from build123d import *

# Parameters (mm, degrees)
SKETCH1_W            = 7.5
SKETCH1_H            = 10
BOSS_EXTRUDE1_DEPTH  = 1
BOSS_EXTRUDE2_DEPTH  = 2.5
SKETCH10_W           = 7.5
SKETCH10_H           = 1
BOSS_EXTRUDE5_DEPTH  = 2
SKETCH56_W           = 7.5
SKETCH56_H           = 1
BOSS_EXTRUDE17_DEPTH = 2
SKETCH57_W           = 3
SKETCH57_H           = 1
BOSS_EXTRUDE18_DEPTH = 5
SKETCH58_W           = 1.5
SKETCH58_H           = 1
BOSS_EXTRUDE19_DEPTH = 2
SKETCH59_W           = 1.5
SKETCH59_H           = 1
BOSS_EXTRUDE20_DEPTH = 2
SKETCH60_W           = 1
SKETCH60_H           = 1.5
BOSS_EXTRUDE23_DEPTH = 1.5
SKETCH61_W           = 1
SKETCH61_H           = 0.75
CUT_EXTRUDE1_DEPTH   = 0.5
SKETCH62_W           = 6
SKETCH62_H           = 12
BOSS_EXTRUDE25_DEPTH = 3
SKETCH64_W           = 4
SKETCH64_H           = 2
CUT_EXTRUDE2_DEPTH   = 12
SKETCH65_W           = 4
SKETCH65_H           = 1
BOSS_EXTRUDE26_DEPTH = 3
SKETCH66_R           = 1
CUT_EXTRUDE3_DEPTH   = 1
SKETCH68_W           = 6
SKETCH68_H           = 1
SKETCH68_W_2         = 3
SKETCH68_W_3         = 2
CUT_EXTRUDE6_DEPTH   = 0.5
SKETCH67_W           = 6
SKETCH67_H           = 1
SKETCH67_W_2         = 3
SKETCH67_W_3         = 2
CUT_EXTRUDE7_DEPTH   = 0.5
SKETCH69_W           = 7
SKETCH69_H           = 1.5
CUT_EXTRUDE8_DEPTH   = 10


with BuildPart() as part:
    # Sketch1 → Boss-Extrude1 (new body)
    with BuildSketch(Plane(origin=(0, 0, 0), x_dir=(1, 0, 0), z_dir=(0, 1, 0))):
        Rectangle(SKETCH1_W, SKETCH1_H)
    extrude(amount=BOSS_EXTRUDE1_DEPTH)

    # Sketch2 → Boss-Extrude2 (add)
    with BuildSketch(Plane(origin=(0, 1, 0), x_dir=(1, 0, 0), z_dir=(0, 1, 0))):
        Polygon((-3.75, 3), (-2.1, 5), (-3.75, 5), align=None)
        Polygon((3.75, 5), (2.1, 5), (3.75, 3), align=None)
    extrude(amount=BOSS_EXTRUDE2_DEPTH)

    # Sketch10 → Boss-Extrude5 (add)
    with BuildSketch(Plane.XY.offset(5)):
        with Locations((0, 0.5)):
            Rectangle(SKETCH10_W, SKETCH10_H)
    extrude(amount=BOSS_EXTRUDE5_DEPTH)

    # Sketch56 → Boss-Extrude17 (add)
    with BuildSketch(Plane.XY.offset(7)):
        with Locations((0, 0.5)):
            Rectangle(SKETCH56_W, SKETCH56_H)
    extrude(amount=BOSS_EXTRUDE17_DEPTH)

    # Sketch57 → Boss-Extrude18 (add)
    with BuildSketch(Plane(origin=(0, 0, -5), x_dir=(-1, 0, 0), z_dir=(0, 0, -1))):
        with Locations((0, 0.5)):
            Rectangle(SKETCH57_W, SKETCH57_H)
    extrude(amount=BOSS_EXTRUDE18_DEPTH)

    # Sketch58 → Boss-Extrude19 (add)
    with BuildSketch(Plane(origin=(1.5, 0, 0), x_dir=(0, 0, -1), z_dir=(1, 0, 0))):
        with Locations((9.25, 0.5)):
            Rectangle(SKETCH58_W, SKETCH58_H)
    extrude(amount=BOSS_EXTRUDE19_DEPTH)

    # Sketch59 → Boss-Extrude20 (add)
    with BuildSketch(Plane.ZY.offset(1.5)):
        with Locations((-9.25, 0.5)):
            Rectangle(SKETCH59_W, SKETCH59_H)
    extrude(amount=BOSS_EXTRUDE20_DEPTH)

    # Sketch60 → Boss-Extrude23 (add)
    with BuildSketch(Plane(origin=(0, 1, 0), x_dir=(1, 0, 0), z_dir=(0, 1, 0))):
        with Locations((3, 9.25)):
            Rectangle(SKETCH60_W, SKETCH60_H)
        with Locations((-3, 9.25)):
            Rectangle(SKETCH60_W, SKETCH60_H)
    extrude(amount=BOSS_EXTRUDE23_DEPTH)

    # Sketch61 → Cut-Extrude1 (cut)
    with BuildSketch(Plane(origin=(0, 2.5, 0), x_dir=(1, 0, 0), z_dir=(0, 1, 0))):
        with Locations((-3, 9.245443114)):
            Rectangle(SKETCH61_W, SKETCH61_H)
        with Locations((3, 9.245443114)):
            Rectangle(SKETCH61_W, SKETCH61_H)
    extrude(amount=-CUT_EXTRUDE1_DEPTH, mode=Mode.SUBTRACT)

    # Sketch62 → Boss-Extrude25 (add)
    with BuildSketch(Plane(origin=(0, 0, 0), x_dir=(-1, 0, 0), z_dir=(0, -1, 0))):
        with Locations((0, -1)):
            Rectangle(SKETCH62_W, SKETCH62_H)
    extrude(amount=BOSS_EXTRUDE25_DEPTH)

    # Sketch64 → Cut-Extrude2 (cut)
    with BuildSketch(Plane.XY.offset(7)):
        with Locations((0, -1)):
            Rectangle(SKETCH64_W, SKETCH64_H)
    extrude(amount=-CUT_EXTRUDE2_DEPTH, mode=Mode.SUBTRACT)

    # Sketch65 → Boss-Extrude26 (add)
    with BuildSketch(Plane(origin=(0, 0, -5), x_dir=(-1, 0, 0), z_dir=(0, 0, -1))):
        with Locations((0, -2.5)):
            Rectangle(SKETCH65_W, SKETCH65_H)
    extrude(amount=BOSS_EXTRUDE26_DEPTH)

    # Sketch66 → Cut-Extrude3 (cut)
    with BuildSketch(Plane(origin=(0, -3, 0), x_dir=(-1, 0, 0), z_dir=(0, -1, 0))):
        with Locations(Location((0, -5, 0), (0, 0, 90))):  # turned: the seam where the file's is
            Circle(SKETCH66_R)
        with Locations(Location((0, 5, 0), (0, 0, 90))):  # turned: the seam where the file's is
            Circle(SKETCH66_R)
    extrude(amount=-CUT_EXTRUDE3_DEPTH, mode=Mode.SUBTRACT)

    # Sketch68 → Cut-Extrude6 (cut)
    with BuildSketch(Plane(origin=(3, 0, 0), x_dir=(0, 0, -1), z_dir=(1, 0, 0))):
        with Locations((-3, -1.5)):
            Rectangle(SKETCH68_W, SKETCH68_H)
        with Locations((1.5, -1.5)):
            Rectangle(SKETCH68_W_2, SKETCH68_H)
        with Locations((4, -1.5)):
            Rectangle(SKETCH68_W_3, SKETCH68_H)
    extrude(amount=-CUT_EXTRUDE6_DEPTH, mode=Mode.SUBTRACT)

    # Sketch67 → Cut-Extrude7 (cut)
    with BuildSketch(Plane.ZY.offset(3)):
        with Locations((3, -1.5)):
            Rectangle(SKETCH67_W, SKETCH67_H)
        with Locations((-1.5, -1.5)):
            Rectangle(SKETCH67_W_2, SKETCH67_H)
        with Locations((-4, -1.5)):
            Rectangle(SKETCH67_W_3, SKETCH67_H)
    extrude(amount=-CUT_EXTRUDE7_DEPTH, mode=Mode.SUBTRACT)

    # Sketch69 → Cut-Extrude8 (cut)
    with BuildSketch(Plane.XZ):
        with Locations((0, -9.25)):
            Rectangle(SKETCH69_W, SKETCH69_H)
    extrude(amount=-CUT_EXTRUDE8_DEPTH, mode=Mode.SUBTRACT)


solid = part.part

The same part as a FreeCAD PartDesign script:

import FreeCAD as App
import Part
import Sketcher

V = App.Vector

doc = App.newDocument("Part")
body = doc.addObject("PartDesign::Body", "Body")

sketch1 = body.newObject("Sketcher::SketchObject", "Sketch")
sketch1.AttachmentSupport = (doc.getObject("XZ_Plane"), [""])
sketch1.MapMode = "FlatFace"
sketch1.addGeometry([
    Part.LineSegment(V(-4, -5, 0), V(-4, 5, 0)),
    Part.LineSegment(V(-4, 5, 0), V(4, 5, 0)),
    Part.LineSegment(V(4, 5, 0), V(4, -5, 0)),
    Part.LineSegment(V(4, -5, 0), V(-4, -5, 0)),
], False)
sketch1.addConstraint([
    Sketcher.Constraint("Coincident", 0, 2, 1, 1),
    Sketcher.Constraint("Coincident", 1, 2, 2, 1),
    Sketcher.Constraint("Coincident", 2, 2, 3, 1),
    Sketcher.Constraint("Coincident", 3, 2, 0, 1),
    Sketcher.Constraint("Vertical", 0),
    Sketcher.Constraint("Horizontal", 1),
    Sketcher.Constraint("Vertical", 2),
    Sketcher.Constraint("Horizontal", 3),
    Sketcher.Constraint("Symmetric", 0, 2, 2, 2, -1, 1),
    Sketcher.Constraint("DistanceY", 0, 1, 0, 2, 10.0),
    Sketcher.Constraint("DistanceX", 1, 1, 1, 2, 7.5),
])
pad1 = body.newObject("PartDesign::Pad", "Pad")
pad1.Profile = sketch1
pad1.Length = 1
pad1.Reversed = True

sketch2 = body.newObject("Sketcher::SketchObject", "Sketch001")
sketch2.AttachmentSupport = (doc.getObject("XZ_Plane"), [""])
sketch2.MapMode = "FlatFace"
sketch2.AttachmentOffset = App.Placement(V(0, 0, -1), App.Rotation())
sketch2.addGeometry([
    Part.LineSegment(V(-3.8, -3, 0), V(-2.1, -5, 0)),
    Part.LineSegment(V(-2.1, -5, 0), V(-3.8, -5, 0)),
    Part.LineSegment(V(-3.8, -5, 0), V(-3.8, -3, 0)),
    Part.LineSegment(V(3.8, -5, 0), V(2.1, -5, 0)),
    Part.LineSegment(V(2.1, -5, 0), V(3.8, -3, 0)),
    Part.LineSegment(V(3.8, -3, 0), V(3.8, -5, 0)),
], False)
sketch2.addConstraint([
    Sketcher.Constraint("Coincident", 0, 2, 1, 1),
    Sketcher.Constraint("Coincident", 1, 2, 2, 1),
    Sketcher.Constraint("Coincident", 2, 2, 0, 1),
    Sketcher.Constraint("Coincident", 3, 2, 4, 1),
    Sketcher.Constraint("Coincident", 4, 2, 5, 1),
    Sketcher.Constraint("Coincident", 5, 2, 3, 1),
    Sketcher.Constraint("Horizontal", 1),
    Sketcher.Constraint("Vertical", 2),
    Sketcher.Constraint("Horizontal", 3),
    Sketcher.Constraint("Vertical", 5),
    Sketcher.Constraint("Symmetric", 0, 2, 3, 2, -2),
    Sketcher.Constraint("Symmetric", 2, 2, 4, 2, -2),
    Sketcher.Constraint("DistanceY", 2, 1, 2, 2, 2.0),
    Sketcher.Constraint("DistanceY", 0, 2, -1, 1, 5.0),
    Sketcher.Constraint("DistanceX", 1, 2, 1, 1, 1.65),
    Sketcher.Constraint("DistanceX", 0, 2, -1, 1, 2.1),
])
pad2 = body.newObject("PartDesign::Pad", "Pad001")
pad2.Profile = sketch2
pad2.Length = 2.5
pad2.Reversed = True

sketch3 = body.newObject("Sketcher::SketchObject", "Sketch002")
sketch3.AttachmentSupport = (doc.getObject("XY_Plane"), [""])
sketch3.MapMode = "FlatFace"
sketch3.AttachmentOffset = App.Placement(V(0, 0, 5), App.Rotation())
sketch3.addGeometry([
    Part.LineSegment(V(-3.8, 1, 0), V(-3.8, 0, 0)),
    Part.LineSegment(V(-3.8, 0, 0), V(3.8, 0, 0)),
    Part.LineSegment(V(3.8, 0, 0), V(3.8, 1, 0)),
    Part.LineSegment(V(3.8, 1, 0), V(-3.8, 1, 0)),
], False)
sketch3.addConstraint([
    Sketcher.Constraint("Coincident", 0, 2, 1, 1),
    Sketcher.Constraint("Coincident", 1, 2, 2, 1),
    Sketcher.Constraint("Coincident", 2, 2, 3, 1),
    Sketcher.Constraint("Coincident", 3, 2, 0, 1),
    Sketcher.Constraint("Vertical", 0),
    Sketcher.Constraint("Horizontal", 1),
    Sketcher.Constraint("Vertical", 2),
    Sketcher.Constraint("Horizontal", 3),
    Sketcher.Constraint("Symmetric", 0, 2, 1, 2, -1, 1),
    Sketcher.Constraint("DistanceY", 0, 2, 0, 1, 1.0),
    Sketcher.Constraint("DistanceX", 1, 1, 1, 2, 7.5),
])
pad3 = body.newObject("PartDesign::Pad", "Pad002")
pad3.Profile = sketch3
pad3.Length = 2

sketch4 = body.newObject("Sketcher::SketchObject", "Sketch003")
sketch4.AttachmentSupport = (doc.getObject("XY_Plane"), [""])
sketch4.MapMode = "FlatFace"
sketch4.AttachmentOffset = App.Placement(V(0, 0, 7), App.Rotation())
sketch4.addGeometry([
    Part.LineSegment(V(-3.8, 1, 0), V(-3.8, 0, 0)),
    Part.LineSegment(V(-3.8, 0, 0), V(3.8, 0, 0)),
    Part.LineSegment(V(3.8, 0, 0), V(3.8, 1, 0)),
    Part.LineSegment(V(3.8, 1, 0), V(-3.8, 1, 0)),
], False)
sketch4.addConstraint([
    Sketcher.Constraint("Coincident", 0, 2, 1, 1),
    Sketcher.Constraint("Coincident", 1, 2, 2, 1),
    Sketcher.Constraint("Coincident", 2, 2, 3, 1),
    Sketcher.Constraint("Coincident", 3, 2, 0, 1),
    Sketcher.Constraint("Vertical", 0),
    Sketcher.Constraint("Horizontal", 1),
    Sketcher.Constraint("Vertical", 2),
    Sketcher.Constraint("Horizontal", 3),
    Sketcher.Constraint("Symmetric", 0, 2, 1, 2, -1, 1),
    Sketcher.Constraint("DistanceY", 0, 2, 0, 1, 1.0),
    Sketcher.Constraint("DistanceX", 1, 1, 1, 2, 7.5),
])
pad4 = body.newObject("PartDesign::Pad", "Pad003")
pad4.Profile = sketch4
pad4.Length = 2

sketch5 = body.newObject("Sketcher::SketchObject", "Sketch004")
sketch5.AttachmentSupport = (doc.getObject("XY_Plane"), [""])
sketch5.MapMode = "FlatFace"
sketch5.AttachmentOffset = App.Placement(V(0, 0, -5), App.Rotation())
sketch5.addGeometry([
    Part.LineSegment(V(1.5, 1, 0), V(1.5, 0, 0)),
    Part.LineSegment(V(1.5, 0, 0), V(-1.5, 0, 0)),
    Part.LineSegment(V(-1.5, 0, 0), V(-1.5, 1, 0)),
    Part.LineSegment(V(-1.5, 1, 0), V(1.5, 1, 0)),
], False)
sketch5.addConstraint([
    Sketcher.Constraint("Coincident", 0, 2, 1, 1),
    Sketcher.Constraint("Coincident", 1, 2, 2, 1),
    Sketcher.Constraint("Coincident", 2, 2, 3, 1),
    Sketcher.Constraint("Coincident", 3, 2, 0, 1),
    Sketcher.Constraint("Vertical", 0),
    Sketcher.Constraint("Horizontal", 1),
    Sketcher.Constraint("Vertical", 2),
    Sketcher.Constraint("Horizontal", 3),
    Sketcher.Constraint("Symmetric", 0, 2, 1, 2, -1, 1),
    Sketcher.Constraint("DistanceX", 1, 2, 1, 1, 3.0),
    Sketcher.Constraint("DistanceY", 0, 2, 0, 1, 1.0),
])
pad5 = body.newObject("PartDesign::Pad", "Pad004")
pad5.Profile = sketch5
pad5.Length = 5
pad5.Reversed = True

sketch6 = body.newObject("Sketcher::SketchObject", "Sketch005")
sketch6.AttachmentSupport = (doc.getObject("YZ_Plane"), [""])
sketch6.MapMode = "FlatFace"
sketch6.AttachmentOffset = App.Placement(V(0, 0, 1.5), App.Rotation())
sketch6.addGeometry([
    Part.LineSegment(V(1, -8.5, 0), V(0, -8.5, 0)),
    Part.LineSegment(V(0, -8.5, 0), V(0, -10, 0)),
    Part.LineSegment(V(0, -10, 0), V(1, -10, 0)),
    Part.LineSegment(V(1, -10, 0), V(1, -8.5, 0)),
], False)
sketch6.addConstraint([
    Sketcher.Constraint("Coincident", 0, 2, 1, 1),
    Sketcher.Constraint("Coincident", 1, 2, 2, 1),
    Sketcher.Constraint("Coincident", 2, 2, 3, 1),
    Sketcher.Constraint("Coincident", 3, 2, 0, 1),
    Sketcher.Constraint("Horizontal", 0),
    Sketcher.Constraint("Vertical", 1),
    Sketcher.Constraint("Horizontal", 2),
    Sketcher.Constraint("Vertical", 3),
    Sketcher.Constraint("PointOnObject", 0, 2, -2),
    Sketcher.Constraint("DistanceX", 0, 2, 0, 1, 1.0),
    Sketcher.Constraint("DistanceY", 1, 2, 1, 1, 1.5),
    Sketcher.Constraint("DistanceY", 1, 2, -1, 1, 10.0),
])
pad6 = body.newObject("PartDesign::Pad", "Pad005")
pad6.Profile = sketch6
pad6.Length = 2

sketch7 = body.newObject("Sketcher::SketchObject", "Sketch006")
sketch7.AttachmentSupport = (doc.getObject("YZ_Plane"), [""])
sketch7.MapMode = "FlatFace"
sketch7.AttachmentOffset = App.Placement(V(0, 0, -1.5), App.Rotation())
sketch7.addGeometry([
    Part.LineSegment(V(1, -10, 0), V(0, -10, 0)),
    Part.LineSegment(V(0, -10, 0), V(0, -8.5, 0)),
    Part.LineSegment(V(0, -8.5, 0), V(1, -8.5, 0)),
    Part.LineSegment(V(1, -8.5, 0), V(1, -10, 0)),
], False)
sketch7.addConstraint([
    Sketcher.Constraint("Coincident", 0, 2, 1, 1),
    Sketcher.Constraint("Coincident", 1, 2, 2, 1),
    Sketcher.Constraint("Coincident", 2, 2, 3, 1),
    Sketcher.Constraint("Coincident", 3, 2, 0, 1),
    Sketcher.Constraint("Horizontal", 0),
    Sketcher.Constraint("Vertical", 1),
    Sketcher.Constraint("Horizontal", 2),
    Sketcher.Constraint("Vertical", 3),
    Sketcher.Constraint("PointOnObject", 0, 2, -2),
    Sketcher.Constraint("DistanceX", 0, 2, 0, 1, 1.0),
    Sketcher.Constraint("DistanceY", 1, 1, 1, 2, 1.5),
    Sketcher.Constraint("DistanceY", 0, 2, -1, 1, 10.0),
])
pad7 = body.newObject("PartDesign::Pad", "Pad006")
pad7.Profile = sketch7
pad7.Length = 2
pad7.Reversed = True

sketch8 = body.newObject("Sketcher::SketchObject", "Sketch007")
sketch8.AttachmentSupport = (doc.getObject("XZ_Plane"), [""])
sketch8.MapMode = "FlatFace"
sketch8.AttachmentOffset = App.Placement(V(0, 0, -1), App.Rotation())
sketch8.addGeometry([
    Part.LineSegment(V(2.5, -10, 0), V(2.5, -8.5, 0)),
    Part.LineSegment(V(2.5, -8.5, 0), V(3.5, -8.5, 0)),
    Part.LineSegment(V(3.5, -8.5, 0), V(3.5, -10, 0)),
    Part.LineSegment(V(3.5, -10, 0), V(2.5, -10, 0)),
    Part.LineSegment(V(-3.5, -10, 0), V(-3.5, -8.5, 0)),
    Part.LineSegment(V(-3.5, -8.5, 0), V(-2.5, -8.5, 0)),
    Part.LineSegment(V(-2.5, -8.5, 0), V(-2.5, -10, 0)),
    Part.LineSegment(V(-2.5, -10, 0), V(-3.5, -10, 0)),
], False)
sketch8.addConstraint([
    Sketcher.Constraint("Coincident", 0, 2, 1, 1),
    Sketcher.Constraint("Coincident", 1, 2, 2, 1),
    Sketcher.Constraint("Coincident", 2, 2, 3, 1),
    Sketcher.Constraint("Coincident", 3, 2, 0, 1),
    Sketcher.Constraint("Coincident", 4, 2, 5, 1),
    Sketcher.Constraint("Coincident", 5, 2, 6, 1),
    Sketcher.Constraint("Coincident", 6, 2, 7, 1),
    Sketcher.Constraint("Coincident", 7, 2, 4, 1),
    Sketcher.Constraint("Vertical", 0),
    Sketcher.Constraint("Horizontal", 1),
    Sketcher.Constraint("Vertical", 2),
    Sketcher.Constraint("Horizontal", 3),
    Sketcher.Constraint("Vertical", 4),
    Sketcher.Constraint("Horizontal", 5),
    Sketcher.Constraint("Vertical", 6),
    Sketcher.Constraint("Horizontal", 7),
    Sketcher.Constraint("Symmetric", 1, 2, 4, 2, -2),
    Sketcher.Constraint("Symmetric", 3, 2, 6, 2, -2),
    Sketcher.Constraint("DistanceX", 1, 1, 1, 2, 1.0),
    Sketcher.Constraint("DistanceY", 0, 1, 0, 2, 1.5),
    Sketcher.Constraint("DistanceY", 2, 2, -1, 1, 10.0),
    Sketcher.Constraint("DistanceX", 4, 2, 0, 2, 6.0),
])
pad8 = body.newObject("PartDesign::Pad", "Pad007")
pad8.Profile = sketch8
pad8.Length = 1.5
pad8.Reversed = True

sketch9 = body.newObject("Sketcher::SketchObject", "Sketch008")
sketch9.AttachmentSupport = (doc.getObject("XZ_Plane"), [""])
sketch9.MapMode = "FlatFace"
sketch9.AttachmentOffset = App.Placement(V(0, 0, -2.5), App.Rotation())
sketch9.addGeometry([
    Part.LineSegment(V(-3.5, -9.6, 0), V(-3.5, -8.9, 0)),
    Part.LineSegment(V(-3.5, -8.9, 0), V(-2.5, -8.9, 0)),
    Part.LineSegment(V(-2.5, -8.9, 0), V(-2.5, -9.6, 0)),
    Part.LineSegment(V(-2.5, -9.6, 0), V(-3.5, -9.6, 0)),
    Part.LineSegment(V(2.5, -9.6, 0), V(2.5, -8.9, 0)),
    Part.LineSegment(V(2.5, -8.9, 0), V(3.5, -8.9, 0)),
    Part.LineSegment(V(3.5, -8.9, 0), V(3.5, -9.6, 0)),
    Part.LineSegment(V(3.5, -9.6, 0), V(2.5, -9.6, 0)),
], False)
sketch9.addConstraint([
    Sketcher.Constraint("Coincident", 0, 2, 1, 1),
    Sketcher.Constraint("Coincident", 1, 2, 2, 1),
    Sketcher.Constraint("Coincident", 2, 2, 3, 1),
    Sketcher.Constraint("Coincident", 3, 2, 0, 1),
    Sketcher.Constraint("Coincident", 4, 2, 5, 1),
    Sketcher.Constraint("Coincident", 5, 2, 6, 1),
    Sketcher.Constraint("Coincident", 6, 2, 7, 1),
    Sketcher.Constraint("Coincident", 7, 2, 4, 1),
    Sketcher.Constraint("Vertical", 0),
    Sketcher.Constraint("Horizontal", 1),
    Sketcher.Constraint("Vertical", 2),
    Sketcher.Constraint("Horizontal", 3),
    Sketcher.Constraint("Vertical", 4),
    Sketcher.Constraint("Horizontal", 5),
    Sketcher.Constraint("Vertical", 6),
    Sketcher.Constraint("Horizontal", 7),
    Sketcher.Constraint("Symmetric", 1, 2, 4, 2, -2),
    Sketcher.Constraint("Symmetric", 3, 2, 6, 2, -2),
    Sketcher.Constraint("DistanceX", 1, 1, 1, 2, 1.0),
    Sketcher.Constraint("DistanceX", 1, 2, 4, 2, 5.0),
    Sketcher.Constraint("DistanceY", 0, 1, 0, 2, 0.75),
    Sketcher.Constraint("DistanceY", 0, 2, -1, 1, 8.870443),
])
pocket1 = body.newObject("PartDesign::Pocket", "Pocket")
pocket1.Profile = sketch9
pocket1.Length = 0.5
pocket1.Reversed = True

sketch10 = body.newObject("Sketcher::SketchObject", "Sketch009")
sketch10.AttachmentSupport = (doc.getObject("XZ_Plane"), [""])
sketch10.MapMode = "FlatFace"
sketch10.addGeometry([
    Part.LineSegment(V(3, -5, 0), V(3, 7, 0)),
    Part.LineSegment(V(3, 7, 0), V(-3, 7, 0)),
    Part.LineSegment(V(-3, 7, 0), V(-3, -5, 0)),
    Part.LineSegment(V(-3, -5, 0), V(3, -5, 0)),
], False)
sketch10.addConstraint([
    Sketcher.Constraint("Coincident", 0, 2, 1, 1),
    Sketcher.Constraint("Coincident", 1, 2, 2, 1),
    Sketcher.Constraint("Coincident", 2, 2, 3, 1),
    Sketcher.Constraint("Coincident", 3, 2, 0, 1),
    Sketcher.Constraint("Vertical", 0),
    Sketcher.Constraint("Horizontal", 1),
    Sketcher.Constraint("Vertical", 2),
    Sketcher.Constraint("Horizontal", 3),
    Sketcher.Constraint("DistanceX", 1, 2, 1, 1, 6.0),
    Sketcher.Constraint("DistanceY", 0, 1, 0, 2, 12.0),
    Sketcher.Constraint("DistanceX", -1, 1, 0, 2, 3.0),
    Sketcher.Constraint("DistanceY", -1, 1, 0, 2, 7.0),
])
pad9 = body.newObject("PartDesign::Pad", "Pad008")
pad9.Profile = sketch10
pad9.Length = 3

sketch11 = body.newObject("Sketcher::SketchObject", "Sketch010")
sketch11.AttachmentSupport = (doc.getObject("XY_Plane"), [""])
sketch11.MapMode = "FlatFace"
sketch11.AttachmentOffset = App.Placement(V(0, 0, 7), App.Rotation())
sketch11.addGeometry([
    Part.LineSegment(V(-2, 0, 0), V(-2, -2, 0)),
    Part.LineSegment(V(-2, -2, 0), V(2, -2, 0)),
    Part.LineSegment(V(2, -2, 0), V(2, 0, 0)),
    Part.LineSegment(V(2, 0, 0), V(-2, 0, 0)),
], False)
sketch11.addConstraint([
    Sketcher.Constraint("Coincident", 0, 2, 1, 1),
    Sketcher.Constraint("Coincident", 1, 2, 2, 1),
    Sketcher.Constraint("Coincident", 2, 2, 3, 1),
    Sketcher.Constraint("Coincident", 3, 2, 0, 1),
    Sketcher.Constraint("Vertical", 0),
    Sketcher.Constraint("Horizontal", 1),
    Sketcher.Constraint("Vertical", 2),
    Sketcher.Constraint("Horizontal", 3),
    Sketcher.Constraint("Symmetric", 2, 2, 3, 2, -1, 1),
    Sketcher.Constraint("DistanceX", 1, 1, 1, 2, 4.0),
    Sketcher.Constraint("DistanceY", 0, 2, 0, 1, 2.0),
])
pocket2 = body.newObject("PartDesign::Pocket", "Pocket001")
pocket2.Profile = sketch11
pocket2.Length = 12

sketch12 = body.newObject("Sketcher::SketchObject", "Sketch011")
sketch12.AttachmentSupport = (doc.getObject("XY_Plane"), [""])
sketch12.MapMode = "FlatFace"
sketch12.AttachmentOffset = App.Placement(V(0, 0, -5), App.Rotation())
sketch12.addGeometry([
    Part.LineSegment(V(2, -2, 0), V(2, -3, 0)),
    Part.LineSegment(V(2, -3, 0), V(-2, -3, 0)),
    Part.LineSegment(V(-2, -3, 0), V(-2, -2, 0)),
    Part.LineSegment(V(-2, -2, 0), V(2, -2, 0)),
], False)
sketch12.addConstraint([
    Sketcher.Constraint("Coincident", 0, 2, 1, 1),
    Sketcher.Constraint("Coincident", 1, 2, 2, 1),
    Sketcher.Constraint("Coincident", 2, 2, 3, 1),
    Sketcher.Constraint("Coincident", 3, 2, 0, 1),
    Sketcher.Constraint("Vertical", 0),
    Sketcher.Constraint("Horizontal", 1),
    Sketcher.Constraint("Vertical", 2),
    Sketcher.Constraint("Horizontal", 3),
    Sketcher.Constraint("DistanceX", 1, 2, 1, 1, 4.0),
    Sketcher.Constraint("DistanceY", 0, 2, 0, 1, 1.0),
    Sketcher.Constraint("DistanceX", -1, 1, 0, 2, 2.0),
    Sketcher.Constraint("DistanceY", 0, 2, -1, 1, 3.0),
])
pad10 = body.newObject("PartDesign::Pad", "Pad009")
pad10.Profile = sketch12
pad10.Length = 3
pad10.Reversed = True

sketch13 = body.newObject("Sketcher::SketchObject", "Sketch012")
sketch13.AttachmentSupport = (doc.getObject("XZ_Plane"), [""])
sketch13.MapMode = "FlatFace"
sketch13.AttachmentOffset = App.Placement(V(0, 0, 3), App.Rotation())
sketch13.addGeometry([
    Part.Circle(V(0, 5, 0), V(0, 0, 1), 1),
    Part.Circle(V(0, -5, 0), V(0, 0, 1), 1),
], False)
sketch13.addConstraint([
    Sketcher.Constraint("Equal", 0, 1),
    Sketcher.Constraint("Symmetric", 0, 3, 1, 3, -1, 1),
    Sketcher.Constraint("PointOnObject", 0, 3, -2),
    Sketcher.Constraint("Diameter", 0, 2.0),
    Sketcher.Constraint("DistanceY", -1, 1, 0, 3, 5.0),
])
pocket3 = body.newObject("PartDesign::Pocket", "Pocket002")
pocket3.Profile = sketch13
pocket3.Length = 1

sketch14 = body.newObject("Sketcher::SketchObject", "Sketch013")
sketch14.AttachmentSupport = (doc.getObject("YZ_Plane"), [""])
sketch14.MapMode = "FlatFace"
sketch14.AttachmentOffset = App.Placement(V(0, 0, 3), App.Rotation())
sketch14.addGeometry([
    Part.LineSegment(V(-1, 6, 0), V(-2, 6, 0)),
    Part.LineSegment(V(-2, 6, 0), V(-2, -5, 0)),
    Part.LineSegment(V(-2, -5, 0), V(-1, -5, 0)),
    Part.LineSegment(V(-1, -5, 0), V(-1, 6, 0)),
], False)
sketch14.addConstraint([
    Sketcher.Constraint("Coincident", 0, 2, 1, 1),
    Sketcher.Constraint("Coincident", 1, 2, 2, 1),
    Sketcher.Constraint("Coincident", 2, 2, 3, 1),
    Sketcher.Constraint("Coincident", 3, 2, 0, 1),
    Sketcher.Constraint("Horizontal", 0),
    Sketcher.Constraint("Vertical", 1),
    Sketcher.Constraint("Horizontal", 2),
    Sketcher.Constraint("Vertical", 3),
    Sketcher.Constraint("DistanceX", 0, 2, 0, 1, 1.0),
    Sketcher.Constraint("DistanceY", 1, 2, 1, 1, 11.0),
    Sketcher.Constraint("DistanceX", 0, 2, -1, 1, 2.0),
    Sketcher.Constraint("DistanceY", -1, 1, 0, 2, 6.0),
])
pocket4 = body.newObject("PartDesign::Pocket", "Pocket003")
pocket4.Profile = sketch14
pocket4.Length = 0.5

sketch15 = body.newObject("Sketcher::SketchObject", "Sketch014")
sketch15.AttachmentSupport = (doc.getObject("YZ_Plane"), [""])
sketch15.MapMode = "FlatFace"
sketch15.AttachmentOffset = App.Placement(V(0, 0, -3), App.Rotation())
sketch15.addGeometry([
    Part.LineSegment(V(-2, 6, 0), V(-1, 6, 0)),
    Part.LineSegment(V(-1, 6, 0), V(-1, -5, 0)),
    Part.LineSegment(V(-1, -5, 0), V(-2, -5, 0)),
    Part.LineSegment(V(-2, -5, 0), V(-2, 6, 0)),
], False)
sketch15.addConstraint([
    Sketcher.Constraint("Coincident", 0, 2, 1, 1),
    Sketcher.Constraint("Coincident", 1, 2, 2, 1),
    Sketcher.Constraint("Coincident", 2, 2, 3, 1),
    Sketcher.Constraint("Coincident", 3, 2, 0, 1),
    Sketcher.Constraint("Horizontal", 0),
    Sketcher.Constraint("Vertical", 1),
    Sketcher.Constraint("Horizontal", 2),
    Sketcher.Constraint("Vertical", 3),
    Sketcher.Constraint("DistanceX", 0, 1, 0, 2, 1.0),
    Sketcher.Constraint("DistanceY", 1, 2, 1, 1, 11.0),
    Sketcher.Constraint("DistanceX", 0, 2, -1, 1, 1.0),
    Sketcher.Constraint("DistanceY", -1, 1, 0, 2, 6.0),
])
pocket5 = body.newObject("PartDesign::Pocket", "Pocket004")
pocket5.Profile = sketch15
pocket5.Length = 0.5
pocket5.Reversed = True

sketch16 = body.newObject("Sketcher::SketchObject", "Sketch015")
sketch16.AttachmentSupport = (doc.getObject("XZ_Plane"), [""])
sketch16.MapMode = "FlatFace"
sketch16.addGeometry([
    Part.LineSegment(V(-3.5, -8.5, 0), V(-3.5, -10, 0)),
    Part.LineSegment(V(-3.5, -10, 0), V(3.5, -10, 0)),
    Part.LineSegment(V(3.5, -10, 0), V(3.5, -8.5, 0)),
    Part.LineSegment(V(3.5, -8.5, 0), V(-3.5, -8.5, 0)),
], False)
sketch16.addConstraint([
    Sketcher.Constraint("Coincident", 0, 2, 1, 1),
    Sketcher.Constraint("Coincident", 1, 2, 2, 1),
    Sketcher.Constraint("Coincident", 2, 2, 3, 1),
    Sketcher.Constraint("Coincident", 3, 2, 0, 1),
    Sketcher.Constraint("Vertical", 0),
    Sketcher.Constraint("Horizontal", 1),
    Sketcher.Constraint("Vertical", 2),
    Sketcher.Constraint("Horizontal", 3),
    Sketcher.Constraint("DistanceX", 1, 1, 1, 2, 7.0),
    Sketcher.Constraint("DistanceY", 0, 2, 0, 1, 1.5),
    Sketcher.Constraint("DistanceY", 0, 2, -1, 1, 10.0),
    Sketcher.Constraint("DistanceX", 0, 2, -1, 1, 3.5),
])
pocket6 = body.newObject("PartDesign::Pocket", "Pocket005")
pocket6.Profile = sketch16
pocket6.Length = 10

doc.recompute()
